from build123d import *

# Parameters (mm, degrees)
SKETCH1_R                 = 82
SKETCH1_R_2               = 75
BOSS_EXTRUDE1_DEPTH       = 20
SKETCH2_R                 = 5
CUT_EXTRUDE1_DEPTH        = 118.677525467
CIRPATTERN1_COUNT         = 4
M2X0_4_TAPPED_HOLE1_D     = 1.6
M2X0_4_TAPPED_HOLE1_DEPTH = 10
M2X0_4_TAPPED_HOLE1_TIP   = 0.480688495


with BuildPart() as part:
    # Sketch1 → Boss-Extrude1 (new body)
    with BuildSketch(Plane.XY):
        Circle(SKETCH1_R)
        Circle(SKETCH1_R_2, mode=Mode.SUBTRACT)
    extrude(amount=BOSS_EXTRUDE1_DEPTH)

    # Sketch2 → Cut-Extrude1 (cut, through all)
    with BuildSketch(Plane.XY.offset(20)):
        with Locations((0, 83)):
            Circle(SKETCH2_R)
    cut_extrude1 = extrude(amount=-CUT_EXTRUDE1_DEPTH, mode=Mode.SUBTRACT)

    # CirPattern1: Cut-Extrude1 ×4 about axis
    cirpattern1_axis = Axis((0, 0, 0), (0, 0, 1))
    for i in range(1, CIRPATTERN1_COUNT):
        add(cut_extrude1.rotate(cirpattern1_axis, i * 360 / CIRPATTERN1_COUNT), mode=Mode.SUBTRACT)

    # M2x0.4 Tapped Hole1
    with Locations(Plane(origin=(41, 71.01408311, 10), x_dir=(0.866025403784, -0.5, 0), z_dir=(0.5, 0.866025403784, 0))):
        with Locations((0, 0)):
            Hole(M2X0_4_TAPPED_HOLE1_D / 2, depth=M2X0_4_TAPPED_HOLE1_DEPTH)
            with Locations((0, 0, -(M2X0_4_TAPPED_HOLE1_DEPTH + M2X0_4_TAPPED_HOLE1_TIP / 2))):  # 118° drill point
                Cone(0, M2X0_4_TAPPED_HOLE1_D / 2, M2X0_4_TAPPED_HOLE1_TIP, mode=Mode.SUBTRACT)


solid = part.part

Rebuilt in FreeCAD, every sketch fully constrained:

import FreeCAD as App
import Part
import Sketcher

V = App.Vector

doc = App.newDocument("Part")
body = doc.addObject("PartDesign::Body", "Body")

# Sketch on XY plane
sketch1 = body.newObject("Sketcher::SketchObject", "Sketch")
sketch1.AttachmentSupport = (doc.getObject("XY_Plane"), [""])
sketch1.MapMode = "FlatFace"
sketch1.addGeometry(Part.Circle(V(0, 0, 0), V(0, 0, 1), 82), False)
sketch1.addGeometry(Part.Circle(V(0, 0, 0), V(0, 0, 1), 75), False)
sketch1.addConstraint(Sketcher.Constraint("Coincident", 0, 3, -1, 1))
sketch1.addConstraint(Sketcher.Constraint("Coincident", 1, 3, -1, 1))
sketch1.addConstraint(Sketcher.Constraint("Diameter", 0, 164.0))
sketch1.addConstraint(Sketcher.Constraint("Diameter", 1, 150.0))
pad1 = body.newObject("PartDesign::Pad", "Pad")
pad1.Profile = sketch1
pad1.Length = 20

# Sketch on XY plane
sketch2 = body.newObject("Sketcher::SketchObject", "Sketch001")
sketch2.AttachmentSupport = (doc.getObject("XY_Plane"), [""])
sketch2.MapMode = "FlatFace"
sketch2.AttachmentOffset = App.Placement(V(0, 0, 20), App.Rotation())
sketch2.addGeometry(Part.Circle(V(0, 83, 0), V(0, 0, 1), 5), False)
sketch2.addConstraint(Sketcher.Constraint("PointOnObject", 0, 3, -2))
sketch2.addConstraint(Sketcher.Constraint("Diameter", 0, 10.0))
sketch2.addConstraint(Sketcher.Constraint("DistanceY", -1, 1, 0, 3, 83.0))
pocket1 = body.newObject("PartDesign::Pocket", "Pocket")
pocket1.Profile = sketch2
pocket1.Type = "ThroughAll"
doc.recompute()

polarpattern = body.newObject("PartDesign::PolarPattern", "PolarPattern")
polarpattern.Originals = [pocket1]
polarpattern.Axis = (doc.getObject("Z_Axis"), [""])
polarpattern.Angle = 360
polarpattern.Occurrences = 4
body.Tip = polarpattern

# Sketch on an angled plane
sketch3 = body.newObject("Sketcher::SketchObject", "Sketch002")
sketch3.Placement = App.Placement(V(41, 71.014083, 0), App.Rotation(V(0.866025404, -0.5, 0), V(0, 0, -1), V(0.5, 0.866025404, 0), "ZXY"))
sketch3.addGeometry(Part.Circle(V(0, -10, 0), V(0, 0, 1), 0.8), False)
sketch3.addConstraint(Sketcher.Constraint("PointOnObject", 0, 3, -2))
sketch3.addConstraint(Sketcher.Constraint("Diameter", 0, 1.6))
sketch3.addConstraint(Sketcher.Constraint("DistanceY", 0, 3, -1, 1, 10.0))
doc.recompute()
hole = body.newObject("PartDesign::Hole", "Hole")
hole.Profile = sketch3
hole.ThreadType = "None"
hole.Diameter = 1.6
hole.DepthType = "Dimension"
hole.Depth = 10
hole.DrillPoint = "Angled"
hole.DrillPointAngle = 118

doc.recompute()
